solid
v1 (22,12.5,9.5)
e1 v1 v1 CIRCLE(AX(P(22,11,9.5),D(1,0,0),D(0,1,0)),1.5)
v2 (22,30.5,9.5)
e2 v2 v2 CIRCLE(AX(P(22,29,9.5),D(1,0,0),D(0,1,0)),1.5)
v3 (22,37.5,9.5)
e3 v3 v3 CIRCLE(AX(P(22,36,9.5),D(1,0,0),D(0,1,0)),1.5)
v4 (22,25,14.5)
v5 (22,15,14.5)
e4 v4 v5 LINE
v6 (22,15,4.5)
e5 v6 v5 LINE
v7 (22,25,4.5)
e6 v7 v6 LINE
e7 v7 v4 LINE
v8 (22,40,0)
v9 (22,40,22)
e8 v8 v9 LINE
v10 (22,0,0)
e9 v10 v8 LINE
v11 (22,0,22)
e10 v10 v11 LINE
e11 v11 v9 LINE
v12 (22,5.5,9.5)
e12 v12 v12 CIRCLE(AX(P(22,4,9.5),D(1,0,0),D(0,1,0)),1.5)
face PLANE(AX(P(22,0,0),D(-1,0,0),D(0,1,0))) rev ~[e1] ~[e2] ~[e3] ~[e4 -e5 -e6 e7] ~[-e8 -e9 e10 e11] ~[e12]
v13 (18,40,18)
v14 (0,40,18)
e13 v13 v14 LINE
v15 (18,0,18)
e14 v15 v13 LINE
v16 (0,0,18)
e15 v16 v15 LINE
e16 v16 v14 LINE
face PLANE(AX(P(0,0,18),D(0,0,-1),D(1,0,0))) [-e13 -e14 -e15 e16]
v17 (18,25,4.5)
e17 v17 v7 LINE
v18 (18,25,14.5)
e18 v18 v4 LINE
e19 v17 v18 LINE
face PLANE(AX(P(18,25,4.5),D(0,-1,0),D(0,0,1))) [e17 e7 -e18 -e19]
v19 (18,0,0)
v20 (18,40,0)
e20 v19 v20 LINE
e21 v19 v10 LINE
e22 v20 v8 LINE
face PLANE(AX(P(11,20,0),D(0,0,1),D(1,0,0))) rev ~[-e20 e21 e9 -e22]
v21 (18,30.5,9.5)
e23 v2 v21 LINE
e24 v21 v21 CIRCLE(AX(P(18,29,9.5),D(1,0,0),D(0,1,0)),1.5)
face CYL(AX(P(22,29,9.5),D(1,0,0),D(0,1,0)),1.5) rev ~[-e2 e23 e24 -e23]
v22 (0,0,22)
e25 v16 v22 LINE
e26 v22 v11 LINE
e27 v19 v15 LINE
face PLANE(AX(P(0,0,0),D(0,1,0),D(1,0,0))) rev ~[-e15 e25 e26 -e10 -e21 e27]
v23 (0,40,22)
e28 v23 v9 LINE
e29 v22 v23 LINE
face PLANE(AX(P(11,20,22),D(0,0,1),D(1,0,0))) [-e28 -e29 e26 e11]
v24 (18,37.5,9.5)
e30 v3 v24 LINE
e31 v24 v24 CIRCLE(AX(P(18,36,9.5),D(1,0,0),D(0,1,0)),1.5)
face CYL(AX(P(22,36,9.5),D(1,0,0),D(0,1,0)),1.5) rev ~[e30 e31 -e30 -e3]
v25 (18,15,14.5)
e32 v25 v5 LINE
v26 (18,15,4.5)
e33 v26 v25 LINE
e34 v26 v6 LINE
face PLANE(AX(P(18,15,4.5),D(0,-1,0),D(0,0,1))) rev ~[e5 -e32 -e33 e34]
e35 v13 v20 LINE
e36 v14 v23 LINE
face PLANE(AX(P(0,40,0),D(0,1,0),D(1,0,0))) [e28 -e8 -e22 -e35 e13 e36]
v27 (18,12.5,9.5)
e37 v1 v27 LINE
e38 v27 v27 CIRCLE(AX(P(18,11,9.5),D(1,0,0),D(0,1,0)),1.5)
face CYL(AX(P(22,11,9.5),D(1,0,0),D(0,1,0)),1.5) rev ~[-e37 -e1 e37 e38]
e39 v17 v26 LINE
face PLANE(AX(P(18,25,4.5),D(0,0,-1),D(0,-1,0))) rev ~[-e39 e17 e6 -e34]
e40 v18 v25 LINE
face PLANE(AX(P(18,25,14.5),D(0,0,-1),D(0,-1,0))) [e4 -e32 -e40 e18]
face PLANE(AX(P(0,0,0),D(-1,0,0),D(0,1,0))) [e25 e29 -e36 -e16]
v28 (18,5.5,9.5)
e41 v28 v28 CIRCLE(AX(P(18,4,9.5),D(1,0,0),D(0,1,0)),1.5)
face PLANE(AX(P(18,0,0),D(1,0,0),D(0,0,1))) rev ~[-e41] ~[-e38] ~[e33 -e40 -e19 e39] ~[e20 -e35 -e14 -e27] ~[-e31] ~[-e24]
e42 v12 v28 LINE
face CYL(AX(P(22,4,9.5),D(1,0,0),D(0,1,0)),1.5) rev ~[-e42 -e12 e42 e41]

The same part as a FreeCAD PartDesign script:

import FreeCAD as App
import Part
import Sketcher
Q = App.Units.Quantity


def add_polygon(sketch, points):
    """Adds a closed chain of lines whose ends are joined by coincident constraints."""
    first, n = sketch.GeometryCount, len(points)
    for a, b in zip(points, points[1:] + points[:1]):
        sketch.addGeometry(Part.LineSegment(App.Vector(*a, 0), App.Vector(*b, 0)), False)
    for i in range(n):
        sketch.addConstraint(Sketcher.Constraint("Coincident", first + i, 2, first + (i + 1) % n, 1))

doc = App.newDocument("Part")
body = doc.addObject("PartDesign::Body", "Body")

# Sketch on XY plane
sketch1 = body.newObject("Sketcher::SketchObject", "Sketch")
sketch1.AttachmentSupport = (doc.getObject("XY_Plane"), [""])
sketch1.MapMode = "FlatFace"
add_polygon(sketch1, [(0, 40), (0, 0), (22, 0), (22, 40)])  # lines 0-3
sketch1.addConstraint([
    Sketcher.Constraint("Vertical", 0),
    Sketcher.Constraint("Horizontal", 1),
    Sketcher.Constraint("Vertical", 2),
    Sketcher.Constraint("Horizontal", 3),
    Sketcher.Constraint("Coincident", 0, 2, -1, 1),
    Sketcher.Constraint("DistanceX", 1, 1, 1, 2, Q("22 mm")),
    Sketcher.Constraint("DistanceY", 0, 2, 0, 1, Q("40 mm")),
])
pad1 = body.newObject("PartDesign::Pad", "Pad")
pad1.Profile = sketch1
pad1.Length = 22

# Sketch on XZ plane
sketch2 = body.newObject("Sketcher::SketchObject", "Sketch001")
sketch2.AttachmentSupport = (doc.getObject("XZ_Plane"), [""])
sketch2.MapMode = "FlatFace"
add_polygon(sketch2, [(0, 18), (0, 0), (18, 0), (18, 18)])  # lines 0-3
sketch2.addConstraint([
    Sketcher.Constraint("Vertical", 0),
    Sketcher.Constraint("Horizontal", 1),
    Sketcher.Constraint("Vertical", 2),
    Sketcher.Constraint("Horizontal", 3),
    Sketcher.Constraint("Coincident", 0, 2, -1, 1),
    Sketcher.Constraint("Equal", 3, 0),
    Sketcher.Constraint("DistanceX", 1, 1, 1, 2, Q("18 mm")),
])
pocket1 = body.newObject("PartDesign::Pocket", "Pocket")
pocket1.Profile = sketch2
pocket1.Type = "ThroughAll"

# Sketch on YZ plane
sketch3 = body.newObject("Sketcher::SketchObject", "Sketch002")
sketch3.AttachmentSupport = (doc.getObject("YZ_Plane"), [""])
sketch3.MapMode = "FlatFace"
sketch3.AttachmentOffset = App.Placement(App.Vector(0, 0, 18), App.Rotation())
add_polygon(sketch3, [(25, 14.5), (25, 4.5), (15, 4.5), (15, 14.5)])  # lines 0-3
sketch3.addConstraint([
    Sketcher.Constraint("Vertical", 0),
    Sketcher.Constraint("Horizontal", 1),
    Sketcher.Constraint("Vertical", 2),
    Sketcher.Constraint("Horizontal", 3),
    Sketcher.Constraint("Equal", 3, 0),
    Sketcher.Constraint("DistanceX", 1, 2, 1, 1, Q("10 mm")),
    Sketcher.Constraint("DistanceX", -1, 1, 0, 2, Q("25 mm")),
    Sketcher.Constraint("DistanceY", -1, 1, 0, 2, Q("4.5 mm")),
])
pocket2 = body.newObject("PartDesign::Pocket", "Pocket001")
pocket2.Profile = sketch3
pocket2.Type = "ThroughAll"
pocket2.Reversed = True

# Sketch on YZ plane
sketch4 = body.newObject("Sketcher::SketchObject", "Sketch003")
sketch4.AttachmentSupport = (doc.getObject("YZ_Plane"), [""])
sketch4.MapMode = "FlatFace"
sketch4.AttachmentOffset = App.Placement(App.Vector(0, 0, 22), App.Rotation())
sketch4.addGeometry([
    Part.Circle(App.Vector(4, 9.5, 0), App.Vector(0, 0, 1), 1.5),
    Part.Circle(App.Vector(11, 9.5, 0), App.Vector(0, 0, 1), 1.5),
    Part.Circle(App.Vector(29, 9.5, 0), App.Vector(0, 0, 1), 1.5),
    Part.Circle(App.Vector(36, 9.5, 0), App.Vector(0, 0, 1), 1.5),
], False)
sketch4.addConstraint([
    Sketcher.Constraint("Equal", 0, 1),
    Sketcher.Constraint("Equal", 1, 2),
    Sketcher.Constraint("Equal", 2, 3),
    Sketcher.Constraint("Horizontal", 0, 3, 1, 3),
    Sketcher.Constraint("Horizontal", 1, 3, 2, 3),
    Sketcher.Constraint("Horizontal", 2, 3, 3, 3),
    Sketcher.Constraint("Diameter", 0, Q("3 mm")),
    Sketcher.Constraint("DistanceX", -1, 1, 0, 3, Q("4 mm")),
    Sketcher.Constraint("DistanceX", -1, 1, 1, 3, Q("11 mm")),
    Sketcher.Constraint("DistanceX", -1, 1, 2, 3, Q("29 mm")),
    Sketcher.Constraint("DistanceX", -1, 1, 3, 3, Q("36 mm")),
    Sketcher.Constraint("DistanceY", -1, 1, 0, 3, Q("9.5 mm")),
])
pocket3 = body.newObject("PartDesign::Pocket", "Pocket002")
pocket3.Profile = sketch4
pocket3.Type = "ThroughAll"

doc.recompute()
